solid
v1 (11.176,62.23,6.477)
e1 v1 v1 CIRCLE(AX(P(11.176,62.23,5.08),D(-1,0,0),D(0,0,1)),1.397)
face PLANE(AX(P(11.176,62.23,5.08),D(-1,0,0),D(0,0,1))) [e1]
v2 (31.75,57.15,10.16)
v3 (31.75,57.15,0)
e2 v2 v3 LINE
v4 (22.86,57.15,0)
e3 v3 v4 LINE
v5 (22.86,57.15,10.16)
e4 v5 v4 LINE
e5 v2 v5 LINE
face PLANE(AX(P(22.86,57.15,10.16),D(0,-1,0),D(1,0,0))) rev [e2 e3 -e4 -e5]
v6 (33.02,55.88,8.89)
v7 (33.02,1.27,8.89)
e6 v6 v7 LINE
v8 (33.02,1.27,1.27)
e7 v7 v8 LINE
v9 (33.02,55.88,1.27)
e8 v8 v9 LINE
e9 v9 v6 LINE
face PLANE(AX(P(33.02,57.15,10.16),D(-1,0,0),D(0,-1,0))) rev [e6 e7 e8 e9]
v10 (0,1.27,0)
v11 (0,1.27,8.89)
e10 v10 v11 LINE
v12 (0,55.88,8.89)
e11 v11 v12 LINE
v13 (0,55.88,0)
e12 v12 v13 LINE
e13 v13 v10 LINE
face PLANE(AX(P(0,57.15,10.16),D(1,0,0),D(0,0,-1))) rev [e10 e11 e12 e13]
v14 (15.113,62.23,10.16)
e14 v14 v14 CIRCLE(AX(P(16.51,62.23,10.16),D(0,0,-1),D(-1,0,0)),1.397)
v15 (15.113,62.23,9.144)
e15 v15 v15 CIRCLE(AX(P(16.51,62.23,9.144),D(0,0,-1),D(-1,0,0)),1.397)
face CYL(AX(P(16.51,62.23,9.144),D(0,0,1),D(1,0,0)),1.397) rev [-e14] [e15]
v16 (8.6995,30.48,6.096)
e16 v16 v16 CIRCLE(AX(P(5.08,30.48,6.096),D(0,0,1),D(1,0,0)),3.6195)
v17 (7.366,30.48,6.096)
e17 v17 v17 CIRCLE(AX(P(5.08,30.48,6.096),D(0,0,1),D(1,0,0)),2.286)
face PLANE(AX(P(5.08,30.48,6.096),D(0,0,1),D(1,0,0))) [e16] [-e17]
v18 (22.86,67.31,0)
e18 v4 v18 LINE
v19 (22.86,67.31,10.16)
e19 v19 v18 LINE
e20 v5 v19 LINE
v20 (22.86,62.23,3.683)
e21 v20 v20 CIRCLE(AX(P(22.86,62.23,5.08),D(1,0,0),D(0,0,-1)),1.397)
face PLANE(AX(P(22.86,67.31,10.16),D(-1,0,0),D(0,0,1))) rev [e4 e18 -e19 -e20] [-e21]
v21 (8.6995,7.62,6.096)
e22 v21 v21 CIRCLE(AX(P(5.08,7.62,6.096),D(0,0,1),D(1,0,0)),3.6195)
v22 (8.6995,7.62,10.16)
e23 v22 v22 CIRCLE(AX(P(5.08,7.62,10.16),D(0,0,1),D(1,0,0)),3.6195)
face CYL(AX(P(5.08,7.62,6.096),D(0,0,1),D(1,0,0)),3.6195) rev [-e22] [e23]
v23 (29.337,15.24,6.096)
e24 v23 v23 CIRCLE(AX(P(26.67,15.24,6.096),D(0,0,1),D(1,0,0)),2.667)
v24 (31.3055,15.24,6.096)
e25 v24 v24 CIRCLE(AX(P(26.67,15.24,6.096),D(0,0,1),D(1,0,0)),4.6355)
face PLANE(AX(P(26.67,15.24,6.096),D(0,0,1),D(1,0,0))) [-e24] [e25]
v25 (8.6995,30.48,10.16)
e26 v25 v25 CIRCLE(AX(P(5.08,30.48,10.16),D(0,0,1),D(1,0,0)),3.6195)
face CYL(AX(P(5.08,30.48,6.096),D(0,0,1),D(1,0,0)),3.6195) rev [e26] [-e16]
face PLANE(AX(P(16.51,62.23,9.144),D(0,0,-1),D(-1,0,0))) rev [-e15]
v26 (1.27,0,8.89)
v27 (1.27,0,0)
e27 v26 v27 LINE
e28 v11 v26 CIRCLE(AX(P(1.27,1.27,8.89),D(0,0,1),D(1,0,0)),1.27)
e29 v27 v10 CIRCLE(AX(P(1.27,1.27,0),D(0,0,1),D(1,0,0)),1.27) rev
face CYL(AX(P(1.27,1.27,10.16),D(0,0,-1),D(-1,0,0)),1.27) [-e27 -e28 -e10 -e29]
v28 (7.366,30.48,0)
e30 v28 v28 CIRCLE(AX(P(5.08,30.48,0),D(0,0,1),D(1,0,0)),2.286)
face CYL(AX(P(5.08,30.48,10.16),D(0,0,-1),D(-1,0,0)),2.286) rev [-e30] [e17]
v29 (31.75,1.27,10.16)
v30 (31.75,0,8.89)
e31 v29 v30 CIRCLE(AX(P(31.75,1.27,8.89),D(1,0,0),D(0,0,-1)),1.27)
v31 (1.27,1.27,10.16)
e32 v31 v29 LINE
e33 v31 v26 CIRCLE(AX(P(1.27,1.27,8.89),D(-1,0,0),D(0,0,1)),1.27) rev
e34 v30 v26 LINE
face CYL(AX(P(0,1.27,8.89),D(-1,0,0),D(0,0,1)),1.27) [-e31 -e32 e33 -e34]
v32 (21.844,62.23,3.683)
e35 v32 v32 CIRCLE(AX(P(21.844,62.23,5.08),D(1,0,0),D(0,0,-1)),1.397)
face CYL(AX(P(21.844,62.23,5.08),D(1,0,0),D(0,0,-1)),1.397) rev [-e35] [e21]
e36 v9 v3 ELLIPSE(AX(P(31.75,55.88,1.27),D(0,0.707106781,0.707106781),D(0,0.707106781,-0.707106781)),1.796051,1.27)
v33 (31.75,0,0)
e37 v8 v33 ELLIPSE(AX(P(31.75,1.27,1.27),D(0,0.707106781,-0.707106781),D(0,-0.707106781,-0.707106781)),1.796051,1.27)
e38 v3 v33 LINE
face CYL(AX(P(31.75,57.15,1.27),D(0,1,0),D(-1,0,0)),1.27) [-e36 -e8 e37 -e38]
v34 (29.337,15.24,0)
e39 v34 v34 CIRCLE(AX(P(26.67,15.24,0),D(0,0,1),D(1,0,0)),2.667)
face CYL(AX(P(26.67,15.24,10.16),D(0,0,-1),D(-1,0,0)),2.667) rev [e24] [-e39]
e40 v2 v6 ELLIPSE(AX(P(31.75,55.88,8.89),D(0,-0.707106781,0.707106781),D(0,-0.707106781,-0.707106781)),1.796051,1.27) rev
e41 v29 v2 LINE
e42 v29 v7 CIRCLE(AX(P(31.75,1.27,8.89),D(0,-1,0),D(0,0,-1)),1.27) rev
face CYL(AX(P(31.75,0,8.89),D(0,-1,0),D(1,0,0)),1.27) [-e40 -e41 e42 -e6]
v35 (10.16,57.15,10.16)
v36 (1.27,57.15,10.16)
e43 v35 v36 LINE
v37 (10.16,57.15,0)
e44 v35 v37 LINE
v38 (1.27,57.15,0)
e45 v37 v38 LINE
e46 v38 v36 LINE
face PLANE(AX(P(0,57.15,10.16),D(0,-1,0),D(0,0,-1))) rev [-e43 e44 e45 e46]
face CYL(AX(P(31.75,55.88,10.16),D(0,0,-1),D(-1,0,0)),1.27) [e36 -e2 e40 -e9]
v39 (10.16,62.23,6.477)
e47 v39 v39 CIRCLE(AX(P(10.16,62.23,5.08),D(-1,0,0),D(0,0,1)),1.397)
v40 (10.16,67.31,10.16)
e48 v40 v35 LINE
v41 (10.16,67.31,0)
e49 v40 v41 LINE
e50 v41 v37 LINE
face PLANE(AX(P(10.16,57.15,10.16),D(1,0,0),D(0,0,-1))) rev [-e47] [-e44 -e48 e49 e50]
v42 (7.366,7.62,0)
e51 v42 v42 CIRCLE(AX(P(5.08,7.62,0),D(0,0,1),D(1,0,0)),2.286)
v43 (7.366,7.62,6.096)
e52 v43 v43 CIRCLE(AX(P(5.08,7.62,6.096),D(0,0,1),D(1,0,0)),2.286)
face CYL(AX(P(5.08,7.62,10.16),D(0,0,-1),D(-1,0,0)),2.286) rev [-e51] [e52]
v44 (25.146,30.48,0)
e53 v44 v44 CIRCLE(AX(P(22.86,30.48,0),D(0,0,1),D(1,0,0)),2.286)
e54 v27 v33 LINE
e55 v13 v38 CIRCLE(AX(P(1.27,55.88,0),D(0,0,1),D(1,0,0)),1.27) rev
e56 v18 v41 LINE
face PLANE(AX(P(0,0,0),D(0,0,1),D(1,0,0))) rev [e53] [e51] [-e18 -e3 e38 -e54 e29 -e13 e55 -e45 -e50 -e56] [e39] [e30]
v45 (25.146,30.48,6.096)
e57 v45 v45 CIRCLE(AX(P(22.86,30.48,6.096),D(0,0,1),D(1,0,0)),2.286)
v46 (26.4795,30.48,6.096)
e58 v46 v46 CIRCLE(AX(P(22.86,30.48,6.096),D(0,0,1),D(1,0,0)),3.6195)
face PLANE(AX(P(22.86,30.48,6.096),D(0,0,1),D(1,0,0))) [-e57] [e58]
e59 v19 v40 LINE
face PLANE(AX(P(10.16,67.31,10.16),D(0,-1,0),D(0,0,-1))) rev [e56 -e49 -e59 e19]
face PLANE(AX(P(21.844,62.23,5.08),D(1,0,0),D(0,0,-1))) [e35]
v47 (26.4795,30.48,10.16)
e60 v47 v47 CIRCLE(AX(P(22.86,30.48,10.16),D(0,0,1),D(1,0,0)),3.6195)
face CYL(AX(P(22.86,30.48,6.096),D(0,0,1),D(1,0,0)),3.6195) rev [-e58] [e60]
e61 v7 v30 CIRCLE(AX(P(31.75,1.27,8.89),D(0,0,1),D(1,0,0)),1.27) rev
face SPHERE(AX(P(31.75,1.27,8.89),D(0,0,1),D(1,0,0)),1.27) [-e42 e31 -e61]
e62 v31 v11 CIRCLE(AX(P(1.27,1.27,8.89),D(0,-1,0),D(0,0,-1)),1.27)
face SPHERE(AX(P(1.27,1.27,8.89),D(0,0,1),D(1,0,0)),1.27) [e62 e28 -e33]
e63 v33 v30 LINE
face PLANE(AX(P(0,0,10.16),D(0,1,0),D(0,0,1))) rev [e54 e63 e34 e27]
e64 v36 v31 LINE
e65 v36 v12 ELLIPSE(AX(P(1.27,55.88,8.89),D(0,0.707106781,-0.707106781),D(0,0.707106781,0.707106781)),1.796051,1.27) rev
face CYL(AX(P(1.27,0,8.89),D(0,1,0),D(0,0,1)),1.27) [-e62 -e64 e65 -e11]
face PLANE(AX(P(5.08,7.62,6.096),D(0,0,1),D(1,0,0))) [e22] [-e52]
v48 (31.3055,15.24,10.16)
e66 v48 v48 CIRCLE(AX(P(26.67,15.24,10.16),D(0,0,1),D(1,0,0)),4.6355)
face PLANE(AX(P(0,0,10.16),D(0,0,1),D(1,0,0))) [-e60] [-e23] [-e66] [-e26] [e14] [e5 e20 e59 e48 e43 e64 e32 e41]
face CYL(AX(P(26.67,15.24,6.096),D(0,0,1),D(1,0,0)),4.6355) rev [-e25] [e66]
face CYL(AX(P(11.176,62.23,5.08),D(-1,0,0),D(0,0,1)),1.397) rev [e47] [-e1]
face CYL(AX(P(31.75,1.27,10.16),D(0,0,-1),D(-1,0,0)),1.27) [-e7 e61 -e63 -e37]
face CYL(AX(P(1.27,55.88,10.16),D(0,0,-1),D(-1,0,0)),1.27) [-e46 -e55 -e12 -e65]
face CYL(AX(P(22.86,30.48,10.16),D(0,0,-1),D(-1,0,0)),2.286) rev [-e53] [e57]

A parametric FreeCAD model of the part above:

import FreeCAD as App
import Part
import Sketcher
from FreeCAD import Vector
Q = App.Units.Quantity


def edges_at(feature, points):
    """Names of the edges that pass closest to the given points."""
    edges = feature.Shape.Edges
    near = lambda p: min(range(len(edges)), key=lambda i: edges[i].distToShape(Part.Vertex(*p))[0])
    return sorted({f"Edge{near(p) + 1}" for p in points})

doc = App.newDocument("Part")
body = doc.addObject("PartDesign::Body", "Body")

# Sketch on XY plane
sketch1 = doc.addObject("Sketcher::SketchObject", "Sketch")
body.addObject(sketch1)
sketch1.AttachmentSupport = (doc.XY_Plane, [""])
sketch1.MapMode = "FlatFace"
sketch1.addGeometry(Part.LineSegment(Vector(10.2, 57.1, 0), Vector(0, 57.1, 0)), False)
sketch1.addGeometry(Part.LineSegment(Vector(0, 57.1, 0), Vector(0, 0, 0)), False)
sketch1.addGeometry(Part.LineSegment(Vector(0, 0, 0), Vector(33, 0, 0)), False)
sketch1.addGeometry(Part.LineSegment(Vector(33, 0, 0), Vector(33, 57.1, 0)), False)
sketch1.addGeometry(Part.LineSegment(Vector(33, 57.1, 0), Vector(22.9, 57.1, 0)), False)
sketch1.addGeometry(Part.LineSegment(Vector(22.9, 57.1, 0), Vector(22.9, 67.3, 0)), False)
sketch1.addGeometry(Part.LineSegment(Vector(22.9, 67.3, 0), Vector(10.2, 67.3, 0)), False)
sketch1.addGeometry(Part.LineSegment(Vector(10.2, 67.3, 0), Vector(10.2, 57.1, 0)), False)
sketch1.addGeometry(Part.Circle(Vector(26.7, 15.2, 0), Vector(0, 0, 1), 2.7), False)
sketch1.addGeometry(Part.Circle(Vector(5.1, 7.6, 0), Vector(0, 0, 1), 2.3), False)
sketch1.addGeometry(Part.Circle(Vector(22.9, 30.5, 0), Vector(0, 0, 1), 2.3), False)
sketch1.addGeometry(Part.Circle(Vector(5.1, 30.5, 0), Vector(0, 0, 1), 2.3), False)
sketch1.addConstraint(Sketcher.Constraint("Coincident", 0, 2, 1, 1))
sketch1.addConstraint(Sketcher.Constraint("Coincident", 1, 2, 2, 1))
sketch1.addConstraint(Sketcher.Constraint("Coincident", 2, 2, 3, 1))
sketch1.addConstraint(Sketcher.Constraint("Coincident", 3, 2, 4, 1))
sketch1.addConstraint(Sketcher.Constraint("Coincident", 4, 2, 5, 1))
sketch1.addConstraint(Sketcher.Constraint("Coincident", 5, 2, 6, 1))
sketch1.addConstraint(Sketcher.Constraint("Coincident", 6, 2, 7, 1))
sketch1.addConstraint(Sketcher.Constraint("Coincident", 7, 2, 0, 1))
sketch1.addConstraint(Sketcher.Constraint("Horizontal", 0))
sketch1.addConstraint(Sketcher.Constraint("Vertical", 1))
sketch1.addConstraint(Sketcher.Constraint("Horizontal", 2))
sketch1.addConstraint(Sketcher.Constraint("Vertical", 3))
sketch1.addConstraint(Sketcher.Constraint("Horizontal", 4))
sketch1.addConstraint(Sketcher.Constraint("Vertical", 5))
sketch1.addConstraint(Sketcher.Constraint("Horizontal", 6))
sketch1.addConstraint(Sketcher.Constraint("Vertical", 7))
sketch1.addConstraint(Sketcher.Constraint("Coincident", 1, 2, -1, 1))
sketch1.addConstraint(Sketcher.Constraint("Equal", 9, 10))
sketch1.addConstraint(Sketcher.Constraint("Equal", 10, 11))
sketch1.addConstraint(Sketcher.Constraint("Horizontal", 10, 3, 11, 3))
sketch1.addConstraint(Sketcher.Constraint("Horizontal", 0, 2, 3, 2))
sketch1.addConstraint(Sketcher.Constraint("Vertical", 9, 3, 11, 3))
sketch1.addConstraint(Sketcher.Constraint("Vertical", 10, 3, 4, 2))
sketch1.addConstraint(Sketcher.Constraint("Equal", 0, 4))
sketch1.addConstraint(Sketcher.Constraint("Equal", 4, 5))
sketch1.addConstraint(Sketcher.Constraint("Diameter", 8, Q("0.21 in")))
sketch1.addConstraint(Sketcher.Constraint("Diameter", 9, Q("0.18 in")))
sketch1.addConstraint(Sketcher.Constraint("DistanceX", 0, 2, 0, 1, Q("0.4 in")))
sketch1.addConstraint(Sketcher.Constraint("DistanceX", 2, 1, 2, 2, Q("1.3 in")))
sketch1.addConstraint(Sketcher.Constraint("DistanceY", 1, 2, 1, 1, Q("2.25 in")))
sketch1.addConstraint(Sketcher.Constraint("DistanceY", -1, 1, 8, 3, Q("0.6 in")))
sketch1.addConstraint(Sketcher.Constraint("DistanceX", -1, 1, 9, 3, Q("0.2 in")))
sketch1.addConstraint(Sketcher.Constraint("DistanceY", -1, 1, 9, 3, Q("0.3 in")))
sketch1.addConstraint(Sketcher.Constraint("DistanceY", -1, 1, 10, 3, Q("1.2 in")))
sketch1.addConstraint(Sketcher.Constraint("DistanceX", -1, 1, 8, 3, Q("1.05 in")))
pad1 = doc.addObject("PartDesign::Pad", "Pad")
body.addObject(pad1)
pad1.Profile = sketch1
pad1.Length = Q("0.4 in")

# Sketch on XY plane
sketch2 = doc.addObject("Sketcher::SketchObject", "Sketch001")
body.addObject(sketch2)
sketch2.AttachmentSupport = (doc.XY_Plane, [""])
sketch2.MapMode = "FlatFace"
sketch2.AttachmentOffset = App.Placement(Vector(0, 0, 0.4 * 25.4), App.Rotation())
sketch2.addGeometry(Part.Circle(Vector(5.1, 30.5, 0), Vector(0, 0, 1), 3.6), False)
sketch2.addGeometry(Part.Circle(Vector(22.9, 30.5, 0), Vector(0, 0, 1), 3.6), False)
sketch2.addGeometry(Part.Circle(Vector(5.1, 7.6, 0), Vector(0, 0, 1), 3.6), False)
sketch2.addGeometry(Part.Circle(Vector(26.7, 15.2, 0), Vector(0, 0, 1), 4.6), False)
sketch2.addConstraint(Sketcher.Constraint("Equal", 0, 1))
sketch2.addConstraint(Sketcher.Constraint("Equal", 1, 2))
sketch2.addConstraint(Sketcher.Constraint("Horizontal", 0, 3, 1, 3))
sketch2.addConstraint(Sketcher.Constraint("Vertical", 0, 3, 2, 3))
sketch2.addConstraint(Sketcher.Constraint("Diameter", 0, Q("0.285 in")))
sketch2.addConstraint(Sketcher.Constraint("Diameter", 3, Q("0.365 in")))
sketch2.addConstraint(Sketcher.Constraint("DistanceX", -1, 1, 0, 3, Q("0.2 in")))
sketch2.addConstraint(Sketcher.Constraint("DistanceY", -1, 1, 0, 3, Q("1.2 in")))
sketch2.addConstraint(Sketcher.Constraint("DistanceX", -1, 1, 1, 3, Q("0.9 in")))
sketch2.addConstraint(Sketcher.Constraint("DistanceY", -1, 1, 2, 3, Q("0.3 in")))
sketch2.addConstraint(Sketcher.Constraint("DistanceY", -1, 1, 3, 3, Q("0.6 in")))
sketch2.addConstraint(Sketcher.Constraint("DistanceX", -1, 1, 3, 3, Q("1.05 in")))
pocket1 = doc.addObject("PartDesign::Pocket", "Pocket")
body.addObject(pocket1)
pocket1.Profile = sketch2
pocket1.Length = Q("0.16 in")

# Sketch on XY plane
sketch3 = doc.addObject("Sketcher::SketchObject", "Sketch002")
body.addObject(sketch3)
sketch3.AttachmentSupport = (doc.XY_Plane, [""])
sketch3.MapMode = "FlatFace"
sketch3.AttachmentOffset = App.Placement(Vector(0, 0, 0.4 * 25.4), App.Rotation())
sketch3.addGeometry(Part.Circle(Vector(16.5, 62.2, 0), Vector(0, 0, 1), 1.4), False)
sketch3.addConstraint(Sketcher.Constraint("Diameter", 0, Q("0.11 in")))
sketch3.addConstraint(Sketcher.Constraint("DistanceX", -1, 1, 0, 3, Q("0.65 in")))
sketch3.addConstraint(Sketcher.Constraint("DistanceY", -1, 1, 0, 3, Q("2.45 in")))
pocket2 = doc.addObject("PartDesign::Pocket", "Pocket001")
body.addObject(pocket2)
pocket2.Profile = sketch3
pocket2.Length = Q("0.04 in")

# Sketch on YZ plane
sketch4 = doc.addObject("Sketcher::SketchObject", "Sketch003")
body.addObject(sketch4)
sketch4.AttachmentSupport = (doc.YZ_Plane, [""])
sketch4.MapMode = "FlatFace"
sketch4.AttachmentOffset = App.Placement(Vector(0, 0, 0.9 * 25.4), App.Rotation())
sketch4.addGeometry(Part.Circle(Vector(62.2, 5.1, 0), Vector(0, 0, 1), 1.4), False)
sketch4.addConstraint(Sketcher.Constraint("Diameter", 0, Q("0.11 in")))
sketch4.addConstraint(Sketcher.Constraint("DistanceY", -1, 1, 0, 3, Q("0.2 in")))
sketch4.addConstraint(Sketcher.Constraint("DistanceX", -1, 1, 0, 3, Q("2.45 in")))
pocket3 = doc.addObject("PartDesign::Pocket", "Pocket002")
body.addObject(pocket3)
pocket3.Profile = sketch4
pocket3.Length = Q("0.04 in")

# Sketch on YZ plane
sketch5 = doc.addObject("Sketcher::SketchObject", "Sketch004")
body.addObject(sketch5)
sketch5.AttachmentSupport = (doc.YZ_Plane, [""])
sketch5.MapMode = "FlatFace"
sketch5.AttachmentOffset = App.Placement(Vector(0, 0, 0.44 * 25.4), App.Rotation())
sketch5.addGeometry(Part.Circle(Vector(62.2, 5.1, 0), Vector(0, 0, 1), 1.4), False)
sketch5.addConstraint(Sketcher.Constraint("Diameter", 0, Q("0.11 in")))
sketch5.addConstraint(Sketcher.Constraint("DistanceY", -1, 1, 0, 3, Q("0.2 in")))
sketch5.addConstraint(Sketcher.Constraint("DistanceX", -1, 1, 0, 3, Q("2.45 in")))
pocket4 = doc.addObject("PartDesign::Pocket", "Pocket003")
body.addObject(pocket4)
pocket4.Profile = sketch5
pocket4.Length = Q("0.04 in")
doc.recompute()

fillet = doc.addObject("PartDesign::Fillet", "Fillet")
body.addObject(fillet)
fillet.Base = (pocket4, edges_at(pocket4, [
    (33.02, 28.575, 10.16),
    (0, 57.15, 5.08),
    (33.02, 57.15, 5.08),
    (33.02, 0, 5.08),
    (0, 0, 5.08),
    (0, 28.575, 10.16),
    (16.51, 0, 10.16),
    (33.02, 28.575, 0),
]))
fillet.Radius = Q("0.05 in")

doc.recompute()
